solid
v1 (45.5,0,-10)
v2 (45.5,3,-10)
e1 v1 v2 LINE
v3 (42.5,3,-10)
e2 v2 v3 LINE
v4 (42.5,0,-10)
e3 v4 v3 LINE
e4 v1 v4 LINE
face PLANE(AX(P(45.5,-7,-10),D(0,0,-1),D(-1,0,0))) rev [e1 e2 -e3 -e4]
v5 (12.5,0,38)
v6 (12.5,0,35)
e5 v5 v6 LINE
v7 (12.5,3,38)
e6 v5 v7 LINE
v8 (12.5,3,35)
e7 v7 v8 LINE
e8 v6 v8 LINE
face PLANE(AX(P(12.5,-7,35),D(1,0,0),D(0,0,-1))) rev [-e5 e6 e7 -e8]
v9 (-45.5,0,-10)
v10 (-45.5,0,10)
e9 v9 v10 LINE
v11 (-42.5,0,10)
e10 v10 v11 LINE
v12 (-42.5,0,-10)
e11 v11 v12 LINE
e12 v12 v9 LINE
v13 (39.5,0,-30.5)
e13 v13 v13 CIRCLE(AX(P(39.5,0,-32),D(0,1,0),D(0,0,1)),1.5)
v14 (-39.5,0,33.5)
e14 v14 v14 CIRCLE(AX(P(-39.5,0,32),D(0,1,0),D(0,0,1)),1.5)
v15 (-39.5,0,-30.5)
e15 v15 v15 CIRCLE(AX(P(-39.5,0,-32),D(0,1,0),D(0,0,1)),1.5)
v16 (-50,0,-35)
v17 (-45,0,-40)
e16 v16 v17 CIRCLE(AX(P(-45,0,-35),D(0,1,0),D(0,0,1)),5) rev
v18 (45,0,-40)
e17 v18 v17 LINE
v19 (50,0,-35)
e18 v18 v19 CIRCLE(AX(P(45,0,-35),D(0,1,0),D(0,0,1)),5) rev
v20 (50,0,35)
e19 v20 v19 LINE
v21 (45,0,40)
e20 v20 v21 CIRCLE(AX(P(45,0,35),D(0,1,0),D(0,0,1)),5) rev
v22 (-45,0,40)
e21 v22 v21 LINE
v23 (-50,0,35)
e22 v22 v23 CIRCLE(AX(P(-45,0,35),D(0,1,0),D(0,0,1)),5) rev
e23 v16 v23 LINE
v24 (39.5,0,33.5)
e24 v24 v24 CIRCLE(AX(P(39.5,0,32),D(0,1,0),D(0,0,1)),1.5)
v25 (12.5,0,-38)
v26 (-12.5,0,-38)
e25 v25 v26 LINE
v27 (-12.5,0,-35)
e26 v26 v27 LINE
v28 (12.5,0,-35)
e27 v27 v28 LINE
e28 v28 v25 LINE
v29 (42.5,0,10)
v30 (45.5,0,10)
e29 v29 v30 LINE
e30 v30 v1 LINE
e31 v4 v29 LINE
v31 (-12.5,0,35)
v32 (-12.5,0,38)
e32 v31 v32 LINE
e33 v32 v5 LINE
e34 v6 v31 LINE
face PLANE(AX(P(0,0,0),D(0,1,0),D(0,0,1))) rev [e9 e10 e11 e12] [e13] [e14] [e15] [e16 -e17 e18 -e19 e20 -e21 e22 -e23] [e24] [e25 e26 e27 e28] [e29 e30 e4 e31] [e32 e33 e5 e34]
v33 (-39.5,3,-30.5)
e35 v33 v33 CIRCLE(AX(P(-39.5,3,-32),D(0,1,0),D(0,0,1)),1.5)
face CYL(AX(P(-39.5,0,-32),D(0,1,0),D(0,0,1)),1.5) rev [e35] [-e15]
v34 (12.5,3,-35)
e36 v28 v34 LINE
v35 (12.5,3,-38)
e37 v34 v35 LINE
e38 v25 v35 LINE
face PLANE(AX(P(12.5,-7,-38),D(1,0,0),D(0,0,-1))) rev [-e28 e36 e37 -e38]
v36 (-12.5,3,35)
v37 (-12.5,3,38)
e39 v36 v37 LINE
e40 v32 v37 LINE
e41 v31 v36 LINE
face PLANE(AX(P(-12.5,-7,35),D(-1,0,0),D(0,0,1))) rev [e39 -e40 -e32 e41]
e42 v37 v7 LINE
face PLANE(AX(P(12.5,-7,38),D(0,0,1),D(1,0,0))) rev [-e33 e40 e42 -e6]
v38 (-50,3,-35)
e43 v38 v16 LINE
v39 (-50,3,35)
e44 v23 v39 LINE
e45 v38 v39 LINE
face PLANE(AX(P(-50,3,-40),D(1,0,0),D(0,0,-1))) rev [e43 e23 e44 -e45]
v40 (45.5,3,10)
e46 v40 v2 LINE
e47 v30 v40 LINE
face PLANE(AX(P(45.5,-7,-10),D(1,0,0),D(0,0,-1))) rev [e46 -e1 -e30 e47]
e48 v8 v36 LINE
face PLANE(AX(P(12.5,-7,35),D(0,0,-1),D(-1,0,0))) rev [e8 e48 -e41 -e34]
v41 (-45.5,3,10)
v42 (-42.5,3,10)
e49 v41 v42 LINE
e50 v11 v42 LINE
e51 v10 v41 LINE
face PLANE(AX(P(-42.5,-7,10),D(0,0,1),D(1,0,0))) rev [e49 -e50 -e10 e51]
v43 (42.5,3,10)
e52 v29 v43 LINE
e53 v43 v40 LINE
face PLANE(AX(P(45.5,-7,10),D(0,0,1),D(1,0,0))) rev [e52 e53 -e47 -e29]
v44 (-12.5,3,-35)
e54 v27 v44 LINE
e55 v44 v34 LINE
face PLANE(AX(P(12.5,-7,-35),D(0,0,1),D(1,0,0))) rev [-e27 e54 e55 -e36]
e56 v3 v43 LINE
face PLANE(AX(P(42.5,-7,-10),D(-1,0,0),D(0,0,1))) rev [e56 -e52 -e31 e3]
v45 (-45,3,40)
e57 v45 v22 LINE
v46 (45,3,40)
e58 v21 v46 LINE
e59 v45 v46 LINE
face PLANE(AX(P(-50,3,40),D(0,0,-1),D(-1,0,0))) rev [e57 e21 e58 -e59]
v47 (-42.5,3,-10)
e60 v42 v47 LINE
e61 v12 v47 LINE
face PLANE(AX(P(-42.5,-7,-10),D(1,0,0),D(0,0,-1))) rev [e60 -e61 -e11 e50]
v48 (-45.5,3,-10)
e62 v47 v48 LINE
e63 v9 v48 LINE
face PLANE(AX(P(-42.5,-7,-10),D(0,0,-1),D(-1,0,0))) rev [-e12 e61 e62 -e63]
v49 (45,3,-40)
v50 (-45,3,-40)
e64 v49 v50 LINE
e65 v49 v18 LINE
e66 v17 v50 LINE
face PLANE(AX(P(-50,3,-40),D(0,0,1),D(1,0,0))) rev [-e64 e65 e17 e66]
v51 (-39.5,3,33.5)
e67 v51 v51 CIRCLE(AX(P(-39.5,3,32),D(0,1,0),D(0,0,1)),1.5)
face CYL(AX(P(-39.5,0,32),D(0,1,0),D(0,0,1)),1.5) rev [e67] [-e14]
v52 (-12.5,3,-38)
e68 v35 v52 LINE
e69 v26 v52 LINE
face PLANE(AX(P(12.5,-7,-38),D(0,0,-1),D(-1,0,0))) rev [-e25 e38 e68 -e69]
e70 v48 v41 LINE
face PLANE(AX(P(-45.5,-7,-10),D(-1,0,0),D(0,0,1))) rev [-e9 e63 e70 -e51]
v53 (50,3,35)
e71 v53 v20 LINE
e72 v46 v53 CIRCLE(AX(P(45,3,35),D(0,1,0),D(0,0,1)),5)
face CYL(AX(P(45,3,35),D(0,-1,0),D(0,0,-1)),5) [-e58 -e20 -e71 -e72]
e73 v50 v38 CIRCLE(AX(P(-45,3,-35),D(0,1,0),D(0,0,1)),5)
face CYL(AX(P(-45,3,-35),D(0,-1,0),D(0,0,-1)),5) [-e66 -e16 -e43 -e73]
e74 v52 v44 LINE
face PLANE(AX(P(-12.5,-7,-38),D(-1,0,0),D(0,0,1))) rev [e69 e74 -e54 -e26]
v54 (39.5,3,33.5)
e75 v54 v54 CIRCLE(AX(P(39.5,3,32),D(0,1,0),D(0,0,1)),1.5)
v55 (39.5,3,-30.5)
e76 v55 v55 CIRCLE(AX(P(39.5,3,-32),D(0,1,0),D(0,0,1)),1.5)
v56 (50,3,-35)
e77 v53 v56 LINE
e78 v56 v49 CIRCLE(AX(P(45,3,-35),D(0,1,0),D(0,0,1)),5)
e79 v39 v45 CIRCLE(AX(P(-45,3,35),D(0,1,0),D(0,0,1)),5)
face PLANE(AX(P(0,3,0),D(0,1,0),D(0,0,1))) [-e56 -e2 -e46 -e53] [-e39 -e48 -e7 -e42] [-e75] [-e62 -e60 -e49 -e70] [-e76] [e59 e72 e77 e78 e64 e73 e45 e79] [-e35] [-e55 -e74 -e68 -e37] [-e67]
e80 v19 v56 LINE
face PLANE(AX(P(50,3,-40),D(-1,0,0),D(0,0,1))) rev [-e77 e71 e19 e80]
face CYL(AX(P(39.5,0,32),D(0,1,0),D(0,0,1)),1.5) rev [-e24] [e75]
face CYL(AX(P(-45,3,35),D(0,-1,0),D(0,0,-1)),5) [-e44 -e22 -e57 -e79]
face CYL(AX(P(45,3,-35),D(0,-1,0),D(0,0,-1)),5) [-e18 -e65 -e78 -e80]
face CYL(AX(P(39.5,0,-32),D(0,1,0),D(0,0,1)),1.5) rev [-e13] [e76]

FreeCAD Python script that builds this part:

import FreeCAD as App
import Part
import Sketcher
from FreeCAD import Vector


def edges_at(feature, points):
    """Names of the edges that pass closest to the given points."""
    edges = feature.Shape.Edges
    near = lambda p: min(range(len(edges)), key=lambda i: edges[i].distToShape(Part.Vertex(*p))[0])
    return sorted({f"Edge{near(p) + 1}" for p in points})

doc = App.newDocument("Part")
params = doc.addObject("Spreadsheet::Sheet", "Params")
for row, (alias, value) in enumerate([
    ("sketch1_width", "100 mm"),
    ("sketch1_height", "80 mm"),
    ("pad1_length", "3 mm"),
    ("fillet_radius", "5 mm"),
    ("sketch2_diameter", "3 mm"),
    ("pocket1_length", "3 mm"),
    ("sketch3_width", "25 mm"),
    ("sketch3_width2", "3 mm"),
    ("sketch3_height", "20 mm"),
    ("pocket2_length", "10 mm"),
], start=1):
    params.set(f"A{row}", alias)
    params.set(f"B{row}", "=" + value)
    params.setAlias(f"B{row}", alias)

body = doc.addObject("PartDesign::Body", "Body")

sketch1 = doc.addObject("Sketcher::SketchObject", "Sketch")
body.addObject(sketch1)
sketch1.AttachmentSupport = (doc.XZ_Plane, [""])
sketch1.MapMode = "FlatFace"
sketch1.addGeometry([
    Part.LineSegment(Vector(-50, -40, 0), Vector(-50, 40, 0)),
    Part.LineSegment(Vector(-50, 40, 0), Vector(50, 40, 0)),
    Part.LineSegment(Vector(50, 40, 0), Vector(50, -40, 0)),
    Part.LineSegment(Vector(50, -40, 0), Vector(-50, -40, 0)),
], False)
sketch1.addConstraint([
    Sketcher.Constraint("Coincident", 0, 2, 1, 1),
    Sketcher.Constraint("Coincident", 1, 2, 2, 1),
    Sketcher.Constraint("Coincident", 2, 2, 3, 1),
    Sketcher.Constraint("Coincident", 3, 2, 0, 1),
    Sketcher.Constraint("Vertical", 0),
    Sketcher.Constraint("Horizontal", 1),
    Sketcher.Constraint("Vertical", 2),
    Sketcher.Constraint("Horizontal", 3),
    Sketcher.Constraint("Symmetric", 0, 2, 2, 2, -1, 1),
    Sketcher.Constraint("DistanceX", 1, 1, 1, 2, 100.0),
    Sketcher.Constraint("DistanceY", 0, 1, 0, 2, 80.0),
])
sketch1.setExpression("Constraints[9]", "Params.sketch1_width")
sketch1.setExpression("Constraints[10]", "Params.sketch1_height")
pad1 = doc.addObject("PartDesign::Pad", "Pad")
body.addObject(pad1)
pad1.Profile = sketch1
pad1.setExpression("Length", "Params.pad1_length")
pad1.Reversed = True
doc.recompute()

fillet = doc.addObject("PartDesign::Fillet", "Fillet")
body.addObject(fillet)
fillet.Base = (pad1, edges_at(pad1, [
    (50, 1.5, 40),
    (-50, 1.5, 40),
    (-50, 1.5, -40),
    (50, 1.5, -40),
]))
fillet.setExpression("Radius", "Params.fillet_radius")

sketch2 = doc.addObject("Sketcher::SketchObject", "Sketch001")
body.addObject(sketch2)
sketch2.AttachmentSupport = (doc.XZ_Plane, [""])
sketch2.MapMode = "FlatFace"
sketch2.AttachmentOffset = App.Placement(Vector(0, 0, -3), App.Rotation())
sketch2.addGeometry([
    Part.Circle(Vector(39.5, 32, 0), Vector(0, 0, 1), 1.5),
    Part.Circle(Vector(39.5, -32, 0), Vector(0, 0, 1), 1.5),
    Part.Circle(Vector(-39.5, -32, 0), Vector(0, 0, 1), 1.5),
    Part.Circle(Vector(-39.5, 32, 0), Vector(0, 0, 1), 1.5),
], False)
sketch2.addConstraint([
    Sketcher.Constraint("Equal", 0, 1),
    Sketcher.Constraint("Equal", 1, 2),
    Sketcher.Constraint("Equal", 2, 3),
    Sketcher.Constraint("Symmetric", 0, 3, 2, 3, -1, 1),
    Sketcher.Constraint("Symmetric", 1, 3, 3, 3, -1, 1),
    Sketcher.Constraint("Symmetric", 1, 3, 2, 3, -2),
    Sketcher.Constraint("Diameter", 0, 3.0),
    Sketcher.Constraint("DistanceY", -1, 1, 0, 3, 32.0),
    Sketcher.Constraint("DistanceX", 2, 3, 1, 3, 79.0),
])
sketch2.setExpression("Constraints[6]", "Params.sketch2_diameter")
pocket1 = doc.addObject("PartDesign::Pocket", "Pocket")
body.addObject(pocket1)
pocket1.Profile = sketch2
pocket1.setExpression("Length", "Params.pocket1_length")
pocket1.Reversed = True

sketch3 = doc.addObject("Sketcher::SketchObject", "Sketch002")
body.addObject(sketch3)
sketch3.AttachmentSupport = (doc.XZ_Plane, [""])
sketch3.MapMode = "FlatFace"
sketch3.AttachmentOffset = App.Placement(Vector(0, 0, -3), App.Rotation())
sketch3.addGeometry([
    Part.LineSegment(Vector(-12.5, 35, 0), Vector(-12.5, 38, 0)),
    Part.LineSegment(Vector(-12.5, 38, 0), Vector(12.5, 38, 0)),
    Part.LineSegment(Vector(12.5, 38, 0), Vector(12.5, 35, 0)),
    Part.LineSegment(Vector(12.5, 35, 0), Vector(-12.5, 35, 0)),
    Part.LineSegment(Vector(-12.5, -38, 0), Vector(-12.5, -35, 0)),
    Part.LineSegment(Vector(-12.5, -35, 0), Vector(12.5, -35, 0)),
    Part.LineSegment(Vector(12.5, -35, 0), Vector(12.5, -38, 0)),
    Part.LineSegment(Vector(12.5, -38, 0), Vector(-12.5, -38, 0)),
    Part.LineSegment(Vector(42.5, -10, 0), Vector(42.5, 10, 0)),
    Part.LineSegment(Vector(42.5, 10, 0), Vector(45.5, 10, 0)),
    Part.LineSegment(Vector(45.5, 10, 0), Vector(45.5, -10, 0)),
    Part.LineSegment(Vector(45.5, -10, 0), Vector(42.5, -10, 0)),
    Part.LineSegment(Vector(-45.5, -10, 0), Vector(-45.5, 10, 0)),
    Part.LineSegment(Vector(-45.5, 10, 0), Vector(-42.5, 10, 0)),
    Part.LineSegment(Vector(-42.5, 10, 0), Vector(-42.5, -10, 0)),
    Part.LineSegment(Vector(-42.5, -10, 0), Vector(-45.5, -10, 0)),
], False)
sketch3.addConstraint([
    Sketcher.Constraint("Coincident", 0, 2, 1, 1),
    Sketcher.Constraint("Coincident", 1, 2, 2, 1),
    Sketcher.Constraint("Coincident", 2, 2, 3, 1),
    Sketcher.Constraint("Coincident", 3, 2, 0, 1),
    Sketcher.Constraint("Coincident", 4, 2, 5, 1),
    Sketcher.Constraint("Coincident", 5, 2, 6, 1),
    Sketcher.Constraint("Coincident", 6, 2, 7, 1),
    Sketcher.Constraint("Coincident", 7, 2, 4, 1),
    Sketcher.Constraint("Coincident", 8, 2, 9, 1),
    Sketcher.Constraint("Coincident", 9, 2, 10, 1),
    Sketcher.Constraint("Coincident", 10, 2, 11, 1),
    Sketcher.Constraint("Coincident", 11, 2, 8, 1),
    Sketcher.Constraint("Coincident", 12, 2, 13, 1),
    Sketcher.Constraint("Coincident", 13, 2, 14, 1),
    Sketcher.Constraint("Coincident", 14, 2, 15, 1),
    Sketcher.Constraint("Coincident", 15, 2, 12, 1),
    Sketcher.Constraint("Vertical", 0),
    Sketcher.Constraint("Horizontal", 1),
    Sketcher.Constraint("Vertical", 2),
    Sketcher.Constraint("Horizontal", 3),
    Sketcher.Constraint("Vertical", 4),
    Sketcher.Constraint("Horizontal", 5),
    Sketcher.Constraint("Vertical", 6),
    Sketcher.Constraint("Horizontal", 7),
    Sketcher.Constraint("Vertical", 8),
    Sketcher.Constraint("Horizontal", 9),
    Sketcher.Constraint("Vertical", 10),
    Sketcher.Constraint("Horizontal", 11),
    Sketcher.Constraint("Vertical", 12),
    Sketcher.Constraint("Horizontal", 13),
    Sketcher.Constraint("Vertical", 14),
    Sketcher.Constraint("Horizontal", 15),
    Sketcher.Constraint("Symmetric", 2, 2, 4, 2, -1, 1),
    Sketcher.Constraint("Symmetric", 0, 2, 6, 2, -1, 1),
    Sketcher.Constraint("Symmetric", 10, 2, 12, 2, -1, 1),
    Sketcher.Constraint("Symmetric", 8, 2, 14, 2, -1, 1),
    Sketcher.Constraint("Horizontal", 9, 2, 12, 2),
    Sketcher.Constraint("Vertical", 3, 2, 4, 2),
    Sketcher.Constraint("Equal", 15, 0),
    Sketcher.Constraint("DistanceX", 1, 1, 1, 2, 25.0),
    Sketcher.Constraint("DistanceX", 9, 1, 9, 2, 3.0),
    Sketcher.Constraint("DistanceY", 8, 1, 8, 2, 20.0),
    Sketcher.Constraint("DistanceY", -1, 1, 0, 2, 38.0),
    Sketcher.Constraint("DistanceX", 2, 2, 8, 2, 30.0),
])
sketch3.setExpression("Constraints[39]", "Params.sketch3_width")
sketch3.setExpression("Constraints[40]", "Params.sketch3_width2")
sketch3.setExpression("Constraints[41]", "Params.sketch3_height")
pocket2 = doc.addObject("PartDesign::Pocket", "Pocket001")
body.addObject(pocket2)
pocket2.Profile = sketch3
pocket2.setExpression("Length", "Params.pocket2_length")
pocket2.Reversed = True

doc.recompute()
